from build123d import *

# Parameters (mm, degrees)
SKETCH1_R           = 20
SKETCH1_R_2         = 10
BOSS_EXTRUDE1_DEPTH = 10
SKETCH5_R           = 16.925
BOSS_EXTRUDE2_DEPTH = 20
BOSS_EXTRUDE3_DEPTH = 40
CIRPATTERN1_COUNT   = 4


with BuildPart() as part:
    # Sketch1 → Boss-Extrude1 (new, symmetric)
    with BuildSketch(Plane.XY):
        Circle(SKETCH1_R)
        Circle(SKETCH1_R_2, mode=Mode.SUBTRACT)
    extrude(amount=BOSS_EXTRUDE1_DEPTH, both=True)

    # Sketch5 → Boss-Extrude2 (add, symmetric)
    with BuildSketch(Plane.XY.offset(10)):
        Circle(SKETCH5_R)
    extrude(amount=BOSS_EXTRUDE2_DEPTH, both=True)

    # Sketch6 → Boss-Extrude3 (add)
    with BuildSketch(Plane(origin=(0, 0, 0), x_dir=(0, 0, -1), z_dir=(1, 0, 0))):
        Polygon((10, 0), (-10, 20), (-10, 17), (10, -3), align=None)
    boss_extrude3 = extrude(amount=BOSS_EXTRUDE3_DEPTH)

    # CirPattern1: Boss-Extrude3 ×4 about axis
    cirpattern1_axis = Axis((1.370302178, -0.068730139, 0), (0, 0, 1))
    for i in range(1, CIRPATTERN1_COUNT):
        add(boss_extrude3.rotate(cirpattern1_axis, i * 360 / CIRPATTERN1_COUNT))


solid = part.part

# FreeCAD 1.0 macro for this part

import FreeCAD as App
import Part
import Sketcher
from FreeCAD import Vector
Q = App.Units.Quantity

doc = App.newDocument("Part")
body = doc.addObject("PartDesign::Body", "Body")

# Sketch on XY plane
sketch1 = body.newObject("Sketcher::SketchObject", "Sketch")
sketch1.AttachmentSupport = (doc.getObject("XY_Plane"), [""])
sketch1.MapMode = "FlatFace"
sketch1.addGeometry([
    Part.Circle(Vector(0, 0, 0), Vector(0, 0, 1), 20),
    Part.Circle(Vector(0, 0, 0), Vector(0, 0, 1), 10),
], False)
sketch1.addConstraint([
    Sketcher.Constraint("Coincident", 0, 3, -1, 1),
    Sketcher.Constraint("Coincident", 1, 3, -1, 1),
    Sketcher.Constraint("Diameter", 0, 40.0),
    Sketcher.Constraint("Diameter", 1, 20.0),
])
pad1 = body.newObject("PartDesign::Pad", "Pad")
pad1.Profile = sketch1
pad1.Length = 20
pad1.Midplane = True

# Sketch on XY plane
sketch2 = body.newObject("Sketcher::SketchObject", "Sketch001")
sketch2.AttachmentSupport = (doc.getObject("XY_Plane"), [""])
sketch2.MapMode = "FlatFace"
sketch2.AttachmentOffset = App.Placement(Vector(0, 0, 10), App.Rotation())
sketch2.addGeometry(Part.Circle(Vector(0, 0, 0), Vector(0, 0, 1), 17), False)
sketch2.addConstraint([
    Sketcher.Constraint("Coincident", 0, 3, -1, 1),
    Sketcher.Constraint("Diameter", 0, 33.85),
])
pad2 = body.newObject("PartDesign::Pad", "Pad001")
pad2.Profile = sketch2
pad2.Length = 40
pad2.Midplane = True

# Sketch on YZ plane
sketch3 = body.newObject("Sketcher::SketchObject", "Sketch002")
sketch3.AttachmentSupport = (doc.getObject("YZ_Plane"), [""])
sketch3.MapMode = "FlatFace"
sketch3.addGeometry([
    Part.LineSegment(Vector(0, -10, 0), Vector(20, 10, 0)),
    Part.LineSegment(Vector(20, 10, 0), Vector(17, 10, 0)),
    Part.LineSegment(Vector(17, 10, 0), Vector(-3, -10, 0)),
    Part.LineSegment(Vector(-3, -10, 0), Vector(0, -10, 0)),
], False)
sketch3.addConstraint([
    Sketcher.Constraint("Coincident", 0, 2, 1, 1),
    Sketcher.Constraint("Coincident", 1, 2, 2, 1),
    Sketcher.Constraint("Coincident", 2, 2, 3, 1),
    Sketcher.Constraint("Coincident", 3, 2, 0, 1),
    Sketcher.Constraint("Horizontal", 1),
    Sketcher.Constraint("Horizontal", 3),
    Sketcher.Constraint("PointOnObject", 3, 2, -2),
    Sketcher.Constraint("Parallel", 0, 2),
    Sketcher.Constraint("DistanceX", 1, 2, 1, 1, 3.0),
    Sketcher.Constraint("Angle", 0, Q("45 deg")),
    Sketcher.Constraint("DistanceX", -1, 1, 0, 2, 20.0),
    Sketcher.Constraint("DistanceY", -1, 1, 0, 2, 10.0),
])
pad3 = body.newObject("PartDesign::Pad", "Pad002")
pad3.Profile = sketch3
pad3.Length = 40
doc.recompute()

datumline = body.newObject("PartDesign::Line", "DatumLine")
datumline.Placement = App.Placement(Vector(1.370302, -0.06873, 0), App.Rotation(Vector(0, 0, 1), Vector(0, 0, 1)))
polarpattern = body.newObject("PartDesign::PolarPattern", "PolarPattern")
polarpattern.Originals = [pad3]
polarpattern.Axis = (datumline, [""])
polarpattern.Angle = 360
polarpattern.Occurrences = 4
body.Tip = polarpattern

doc.recompute()
